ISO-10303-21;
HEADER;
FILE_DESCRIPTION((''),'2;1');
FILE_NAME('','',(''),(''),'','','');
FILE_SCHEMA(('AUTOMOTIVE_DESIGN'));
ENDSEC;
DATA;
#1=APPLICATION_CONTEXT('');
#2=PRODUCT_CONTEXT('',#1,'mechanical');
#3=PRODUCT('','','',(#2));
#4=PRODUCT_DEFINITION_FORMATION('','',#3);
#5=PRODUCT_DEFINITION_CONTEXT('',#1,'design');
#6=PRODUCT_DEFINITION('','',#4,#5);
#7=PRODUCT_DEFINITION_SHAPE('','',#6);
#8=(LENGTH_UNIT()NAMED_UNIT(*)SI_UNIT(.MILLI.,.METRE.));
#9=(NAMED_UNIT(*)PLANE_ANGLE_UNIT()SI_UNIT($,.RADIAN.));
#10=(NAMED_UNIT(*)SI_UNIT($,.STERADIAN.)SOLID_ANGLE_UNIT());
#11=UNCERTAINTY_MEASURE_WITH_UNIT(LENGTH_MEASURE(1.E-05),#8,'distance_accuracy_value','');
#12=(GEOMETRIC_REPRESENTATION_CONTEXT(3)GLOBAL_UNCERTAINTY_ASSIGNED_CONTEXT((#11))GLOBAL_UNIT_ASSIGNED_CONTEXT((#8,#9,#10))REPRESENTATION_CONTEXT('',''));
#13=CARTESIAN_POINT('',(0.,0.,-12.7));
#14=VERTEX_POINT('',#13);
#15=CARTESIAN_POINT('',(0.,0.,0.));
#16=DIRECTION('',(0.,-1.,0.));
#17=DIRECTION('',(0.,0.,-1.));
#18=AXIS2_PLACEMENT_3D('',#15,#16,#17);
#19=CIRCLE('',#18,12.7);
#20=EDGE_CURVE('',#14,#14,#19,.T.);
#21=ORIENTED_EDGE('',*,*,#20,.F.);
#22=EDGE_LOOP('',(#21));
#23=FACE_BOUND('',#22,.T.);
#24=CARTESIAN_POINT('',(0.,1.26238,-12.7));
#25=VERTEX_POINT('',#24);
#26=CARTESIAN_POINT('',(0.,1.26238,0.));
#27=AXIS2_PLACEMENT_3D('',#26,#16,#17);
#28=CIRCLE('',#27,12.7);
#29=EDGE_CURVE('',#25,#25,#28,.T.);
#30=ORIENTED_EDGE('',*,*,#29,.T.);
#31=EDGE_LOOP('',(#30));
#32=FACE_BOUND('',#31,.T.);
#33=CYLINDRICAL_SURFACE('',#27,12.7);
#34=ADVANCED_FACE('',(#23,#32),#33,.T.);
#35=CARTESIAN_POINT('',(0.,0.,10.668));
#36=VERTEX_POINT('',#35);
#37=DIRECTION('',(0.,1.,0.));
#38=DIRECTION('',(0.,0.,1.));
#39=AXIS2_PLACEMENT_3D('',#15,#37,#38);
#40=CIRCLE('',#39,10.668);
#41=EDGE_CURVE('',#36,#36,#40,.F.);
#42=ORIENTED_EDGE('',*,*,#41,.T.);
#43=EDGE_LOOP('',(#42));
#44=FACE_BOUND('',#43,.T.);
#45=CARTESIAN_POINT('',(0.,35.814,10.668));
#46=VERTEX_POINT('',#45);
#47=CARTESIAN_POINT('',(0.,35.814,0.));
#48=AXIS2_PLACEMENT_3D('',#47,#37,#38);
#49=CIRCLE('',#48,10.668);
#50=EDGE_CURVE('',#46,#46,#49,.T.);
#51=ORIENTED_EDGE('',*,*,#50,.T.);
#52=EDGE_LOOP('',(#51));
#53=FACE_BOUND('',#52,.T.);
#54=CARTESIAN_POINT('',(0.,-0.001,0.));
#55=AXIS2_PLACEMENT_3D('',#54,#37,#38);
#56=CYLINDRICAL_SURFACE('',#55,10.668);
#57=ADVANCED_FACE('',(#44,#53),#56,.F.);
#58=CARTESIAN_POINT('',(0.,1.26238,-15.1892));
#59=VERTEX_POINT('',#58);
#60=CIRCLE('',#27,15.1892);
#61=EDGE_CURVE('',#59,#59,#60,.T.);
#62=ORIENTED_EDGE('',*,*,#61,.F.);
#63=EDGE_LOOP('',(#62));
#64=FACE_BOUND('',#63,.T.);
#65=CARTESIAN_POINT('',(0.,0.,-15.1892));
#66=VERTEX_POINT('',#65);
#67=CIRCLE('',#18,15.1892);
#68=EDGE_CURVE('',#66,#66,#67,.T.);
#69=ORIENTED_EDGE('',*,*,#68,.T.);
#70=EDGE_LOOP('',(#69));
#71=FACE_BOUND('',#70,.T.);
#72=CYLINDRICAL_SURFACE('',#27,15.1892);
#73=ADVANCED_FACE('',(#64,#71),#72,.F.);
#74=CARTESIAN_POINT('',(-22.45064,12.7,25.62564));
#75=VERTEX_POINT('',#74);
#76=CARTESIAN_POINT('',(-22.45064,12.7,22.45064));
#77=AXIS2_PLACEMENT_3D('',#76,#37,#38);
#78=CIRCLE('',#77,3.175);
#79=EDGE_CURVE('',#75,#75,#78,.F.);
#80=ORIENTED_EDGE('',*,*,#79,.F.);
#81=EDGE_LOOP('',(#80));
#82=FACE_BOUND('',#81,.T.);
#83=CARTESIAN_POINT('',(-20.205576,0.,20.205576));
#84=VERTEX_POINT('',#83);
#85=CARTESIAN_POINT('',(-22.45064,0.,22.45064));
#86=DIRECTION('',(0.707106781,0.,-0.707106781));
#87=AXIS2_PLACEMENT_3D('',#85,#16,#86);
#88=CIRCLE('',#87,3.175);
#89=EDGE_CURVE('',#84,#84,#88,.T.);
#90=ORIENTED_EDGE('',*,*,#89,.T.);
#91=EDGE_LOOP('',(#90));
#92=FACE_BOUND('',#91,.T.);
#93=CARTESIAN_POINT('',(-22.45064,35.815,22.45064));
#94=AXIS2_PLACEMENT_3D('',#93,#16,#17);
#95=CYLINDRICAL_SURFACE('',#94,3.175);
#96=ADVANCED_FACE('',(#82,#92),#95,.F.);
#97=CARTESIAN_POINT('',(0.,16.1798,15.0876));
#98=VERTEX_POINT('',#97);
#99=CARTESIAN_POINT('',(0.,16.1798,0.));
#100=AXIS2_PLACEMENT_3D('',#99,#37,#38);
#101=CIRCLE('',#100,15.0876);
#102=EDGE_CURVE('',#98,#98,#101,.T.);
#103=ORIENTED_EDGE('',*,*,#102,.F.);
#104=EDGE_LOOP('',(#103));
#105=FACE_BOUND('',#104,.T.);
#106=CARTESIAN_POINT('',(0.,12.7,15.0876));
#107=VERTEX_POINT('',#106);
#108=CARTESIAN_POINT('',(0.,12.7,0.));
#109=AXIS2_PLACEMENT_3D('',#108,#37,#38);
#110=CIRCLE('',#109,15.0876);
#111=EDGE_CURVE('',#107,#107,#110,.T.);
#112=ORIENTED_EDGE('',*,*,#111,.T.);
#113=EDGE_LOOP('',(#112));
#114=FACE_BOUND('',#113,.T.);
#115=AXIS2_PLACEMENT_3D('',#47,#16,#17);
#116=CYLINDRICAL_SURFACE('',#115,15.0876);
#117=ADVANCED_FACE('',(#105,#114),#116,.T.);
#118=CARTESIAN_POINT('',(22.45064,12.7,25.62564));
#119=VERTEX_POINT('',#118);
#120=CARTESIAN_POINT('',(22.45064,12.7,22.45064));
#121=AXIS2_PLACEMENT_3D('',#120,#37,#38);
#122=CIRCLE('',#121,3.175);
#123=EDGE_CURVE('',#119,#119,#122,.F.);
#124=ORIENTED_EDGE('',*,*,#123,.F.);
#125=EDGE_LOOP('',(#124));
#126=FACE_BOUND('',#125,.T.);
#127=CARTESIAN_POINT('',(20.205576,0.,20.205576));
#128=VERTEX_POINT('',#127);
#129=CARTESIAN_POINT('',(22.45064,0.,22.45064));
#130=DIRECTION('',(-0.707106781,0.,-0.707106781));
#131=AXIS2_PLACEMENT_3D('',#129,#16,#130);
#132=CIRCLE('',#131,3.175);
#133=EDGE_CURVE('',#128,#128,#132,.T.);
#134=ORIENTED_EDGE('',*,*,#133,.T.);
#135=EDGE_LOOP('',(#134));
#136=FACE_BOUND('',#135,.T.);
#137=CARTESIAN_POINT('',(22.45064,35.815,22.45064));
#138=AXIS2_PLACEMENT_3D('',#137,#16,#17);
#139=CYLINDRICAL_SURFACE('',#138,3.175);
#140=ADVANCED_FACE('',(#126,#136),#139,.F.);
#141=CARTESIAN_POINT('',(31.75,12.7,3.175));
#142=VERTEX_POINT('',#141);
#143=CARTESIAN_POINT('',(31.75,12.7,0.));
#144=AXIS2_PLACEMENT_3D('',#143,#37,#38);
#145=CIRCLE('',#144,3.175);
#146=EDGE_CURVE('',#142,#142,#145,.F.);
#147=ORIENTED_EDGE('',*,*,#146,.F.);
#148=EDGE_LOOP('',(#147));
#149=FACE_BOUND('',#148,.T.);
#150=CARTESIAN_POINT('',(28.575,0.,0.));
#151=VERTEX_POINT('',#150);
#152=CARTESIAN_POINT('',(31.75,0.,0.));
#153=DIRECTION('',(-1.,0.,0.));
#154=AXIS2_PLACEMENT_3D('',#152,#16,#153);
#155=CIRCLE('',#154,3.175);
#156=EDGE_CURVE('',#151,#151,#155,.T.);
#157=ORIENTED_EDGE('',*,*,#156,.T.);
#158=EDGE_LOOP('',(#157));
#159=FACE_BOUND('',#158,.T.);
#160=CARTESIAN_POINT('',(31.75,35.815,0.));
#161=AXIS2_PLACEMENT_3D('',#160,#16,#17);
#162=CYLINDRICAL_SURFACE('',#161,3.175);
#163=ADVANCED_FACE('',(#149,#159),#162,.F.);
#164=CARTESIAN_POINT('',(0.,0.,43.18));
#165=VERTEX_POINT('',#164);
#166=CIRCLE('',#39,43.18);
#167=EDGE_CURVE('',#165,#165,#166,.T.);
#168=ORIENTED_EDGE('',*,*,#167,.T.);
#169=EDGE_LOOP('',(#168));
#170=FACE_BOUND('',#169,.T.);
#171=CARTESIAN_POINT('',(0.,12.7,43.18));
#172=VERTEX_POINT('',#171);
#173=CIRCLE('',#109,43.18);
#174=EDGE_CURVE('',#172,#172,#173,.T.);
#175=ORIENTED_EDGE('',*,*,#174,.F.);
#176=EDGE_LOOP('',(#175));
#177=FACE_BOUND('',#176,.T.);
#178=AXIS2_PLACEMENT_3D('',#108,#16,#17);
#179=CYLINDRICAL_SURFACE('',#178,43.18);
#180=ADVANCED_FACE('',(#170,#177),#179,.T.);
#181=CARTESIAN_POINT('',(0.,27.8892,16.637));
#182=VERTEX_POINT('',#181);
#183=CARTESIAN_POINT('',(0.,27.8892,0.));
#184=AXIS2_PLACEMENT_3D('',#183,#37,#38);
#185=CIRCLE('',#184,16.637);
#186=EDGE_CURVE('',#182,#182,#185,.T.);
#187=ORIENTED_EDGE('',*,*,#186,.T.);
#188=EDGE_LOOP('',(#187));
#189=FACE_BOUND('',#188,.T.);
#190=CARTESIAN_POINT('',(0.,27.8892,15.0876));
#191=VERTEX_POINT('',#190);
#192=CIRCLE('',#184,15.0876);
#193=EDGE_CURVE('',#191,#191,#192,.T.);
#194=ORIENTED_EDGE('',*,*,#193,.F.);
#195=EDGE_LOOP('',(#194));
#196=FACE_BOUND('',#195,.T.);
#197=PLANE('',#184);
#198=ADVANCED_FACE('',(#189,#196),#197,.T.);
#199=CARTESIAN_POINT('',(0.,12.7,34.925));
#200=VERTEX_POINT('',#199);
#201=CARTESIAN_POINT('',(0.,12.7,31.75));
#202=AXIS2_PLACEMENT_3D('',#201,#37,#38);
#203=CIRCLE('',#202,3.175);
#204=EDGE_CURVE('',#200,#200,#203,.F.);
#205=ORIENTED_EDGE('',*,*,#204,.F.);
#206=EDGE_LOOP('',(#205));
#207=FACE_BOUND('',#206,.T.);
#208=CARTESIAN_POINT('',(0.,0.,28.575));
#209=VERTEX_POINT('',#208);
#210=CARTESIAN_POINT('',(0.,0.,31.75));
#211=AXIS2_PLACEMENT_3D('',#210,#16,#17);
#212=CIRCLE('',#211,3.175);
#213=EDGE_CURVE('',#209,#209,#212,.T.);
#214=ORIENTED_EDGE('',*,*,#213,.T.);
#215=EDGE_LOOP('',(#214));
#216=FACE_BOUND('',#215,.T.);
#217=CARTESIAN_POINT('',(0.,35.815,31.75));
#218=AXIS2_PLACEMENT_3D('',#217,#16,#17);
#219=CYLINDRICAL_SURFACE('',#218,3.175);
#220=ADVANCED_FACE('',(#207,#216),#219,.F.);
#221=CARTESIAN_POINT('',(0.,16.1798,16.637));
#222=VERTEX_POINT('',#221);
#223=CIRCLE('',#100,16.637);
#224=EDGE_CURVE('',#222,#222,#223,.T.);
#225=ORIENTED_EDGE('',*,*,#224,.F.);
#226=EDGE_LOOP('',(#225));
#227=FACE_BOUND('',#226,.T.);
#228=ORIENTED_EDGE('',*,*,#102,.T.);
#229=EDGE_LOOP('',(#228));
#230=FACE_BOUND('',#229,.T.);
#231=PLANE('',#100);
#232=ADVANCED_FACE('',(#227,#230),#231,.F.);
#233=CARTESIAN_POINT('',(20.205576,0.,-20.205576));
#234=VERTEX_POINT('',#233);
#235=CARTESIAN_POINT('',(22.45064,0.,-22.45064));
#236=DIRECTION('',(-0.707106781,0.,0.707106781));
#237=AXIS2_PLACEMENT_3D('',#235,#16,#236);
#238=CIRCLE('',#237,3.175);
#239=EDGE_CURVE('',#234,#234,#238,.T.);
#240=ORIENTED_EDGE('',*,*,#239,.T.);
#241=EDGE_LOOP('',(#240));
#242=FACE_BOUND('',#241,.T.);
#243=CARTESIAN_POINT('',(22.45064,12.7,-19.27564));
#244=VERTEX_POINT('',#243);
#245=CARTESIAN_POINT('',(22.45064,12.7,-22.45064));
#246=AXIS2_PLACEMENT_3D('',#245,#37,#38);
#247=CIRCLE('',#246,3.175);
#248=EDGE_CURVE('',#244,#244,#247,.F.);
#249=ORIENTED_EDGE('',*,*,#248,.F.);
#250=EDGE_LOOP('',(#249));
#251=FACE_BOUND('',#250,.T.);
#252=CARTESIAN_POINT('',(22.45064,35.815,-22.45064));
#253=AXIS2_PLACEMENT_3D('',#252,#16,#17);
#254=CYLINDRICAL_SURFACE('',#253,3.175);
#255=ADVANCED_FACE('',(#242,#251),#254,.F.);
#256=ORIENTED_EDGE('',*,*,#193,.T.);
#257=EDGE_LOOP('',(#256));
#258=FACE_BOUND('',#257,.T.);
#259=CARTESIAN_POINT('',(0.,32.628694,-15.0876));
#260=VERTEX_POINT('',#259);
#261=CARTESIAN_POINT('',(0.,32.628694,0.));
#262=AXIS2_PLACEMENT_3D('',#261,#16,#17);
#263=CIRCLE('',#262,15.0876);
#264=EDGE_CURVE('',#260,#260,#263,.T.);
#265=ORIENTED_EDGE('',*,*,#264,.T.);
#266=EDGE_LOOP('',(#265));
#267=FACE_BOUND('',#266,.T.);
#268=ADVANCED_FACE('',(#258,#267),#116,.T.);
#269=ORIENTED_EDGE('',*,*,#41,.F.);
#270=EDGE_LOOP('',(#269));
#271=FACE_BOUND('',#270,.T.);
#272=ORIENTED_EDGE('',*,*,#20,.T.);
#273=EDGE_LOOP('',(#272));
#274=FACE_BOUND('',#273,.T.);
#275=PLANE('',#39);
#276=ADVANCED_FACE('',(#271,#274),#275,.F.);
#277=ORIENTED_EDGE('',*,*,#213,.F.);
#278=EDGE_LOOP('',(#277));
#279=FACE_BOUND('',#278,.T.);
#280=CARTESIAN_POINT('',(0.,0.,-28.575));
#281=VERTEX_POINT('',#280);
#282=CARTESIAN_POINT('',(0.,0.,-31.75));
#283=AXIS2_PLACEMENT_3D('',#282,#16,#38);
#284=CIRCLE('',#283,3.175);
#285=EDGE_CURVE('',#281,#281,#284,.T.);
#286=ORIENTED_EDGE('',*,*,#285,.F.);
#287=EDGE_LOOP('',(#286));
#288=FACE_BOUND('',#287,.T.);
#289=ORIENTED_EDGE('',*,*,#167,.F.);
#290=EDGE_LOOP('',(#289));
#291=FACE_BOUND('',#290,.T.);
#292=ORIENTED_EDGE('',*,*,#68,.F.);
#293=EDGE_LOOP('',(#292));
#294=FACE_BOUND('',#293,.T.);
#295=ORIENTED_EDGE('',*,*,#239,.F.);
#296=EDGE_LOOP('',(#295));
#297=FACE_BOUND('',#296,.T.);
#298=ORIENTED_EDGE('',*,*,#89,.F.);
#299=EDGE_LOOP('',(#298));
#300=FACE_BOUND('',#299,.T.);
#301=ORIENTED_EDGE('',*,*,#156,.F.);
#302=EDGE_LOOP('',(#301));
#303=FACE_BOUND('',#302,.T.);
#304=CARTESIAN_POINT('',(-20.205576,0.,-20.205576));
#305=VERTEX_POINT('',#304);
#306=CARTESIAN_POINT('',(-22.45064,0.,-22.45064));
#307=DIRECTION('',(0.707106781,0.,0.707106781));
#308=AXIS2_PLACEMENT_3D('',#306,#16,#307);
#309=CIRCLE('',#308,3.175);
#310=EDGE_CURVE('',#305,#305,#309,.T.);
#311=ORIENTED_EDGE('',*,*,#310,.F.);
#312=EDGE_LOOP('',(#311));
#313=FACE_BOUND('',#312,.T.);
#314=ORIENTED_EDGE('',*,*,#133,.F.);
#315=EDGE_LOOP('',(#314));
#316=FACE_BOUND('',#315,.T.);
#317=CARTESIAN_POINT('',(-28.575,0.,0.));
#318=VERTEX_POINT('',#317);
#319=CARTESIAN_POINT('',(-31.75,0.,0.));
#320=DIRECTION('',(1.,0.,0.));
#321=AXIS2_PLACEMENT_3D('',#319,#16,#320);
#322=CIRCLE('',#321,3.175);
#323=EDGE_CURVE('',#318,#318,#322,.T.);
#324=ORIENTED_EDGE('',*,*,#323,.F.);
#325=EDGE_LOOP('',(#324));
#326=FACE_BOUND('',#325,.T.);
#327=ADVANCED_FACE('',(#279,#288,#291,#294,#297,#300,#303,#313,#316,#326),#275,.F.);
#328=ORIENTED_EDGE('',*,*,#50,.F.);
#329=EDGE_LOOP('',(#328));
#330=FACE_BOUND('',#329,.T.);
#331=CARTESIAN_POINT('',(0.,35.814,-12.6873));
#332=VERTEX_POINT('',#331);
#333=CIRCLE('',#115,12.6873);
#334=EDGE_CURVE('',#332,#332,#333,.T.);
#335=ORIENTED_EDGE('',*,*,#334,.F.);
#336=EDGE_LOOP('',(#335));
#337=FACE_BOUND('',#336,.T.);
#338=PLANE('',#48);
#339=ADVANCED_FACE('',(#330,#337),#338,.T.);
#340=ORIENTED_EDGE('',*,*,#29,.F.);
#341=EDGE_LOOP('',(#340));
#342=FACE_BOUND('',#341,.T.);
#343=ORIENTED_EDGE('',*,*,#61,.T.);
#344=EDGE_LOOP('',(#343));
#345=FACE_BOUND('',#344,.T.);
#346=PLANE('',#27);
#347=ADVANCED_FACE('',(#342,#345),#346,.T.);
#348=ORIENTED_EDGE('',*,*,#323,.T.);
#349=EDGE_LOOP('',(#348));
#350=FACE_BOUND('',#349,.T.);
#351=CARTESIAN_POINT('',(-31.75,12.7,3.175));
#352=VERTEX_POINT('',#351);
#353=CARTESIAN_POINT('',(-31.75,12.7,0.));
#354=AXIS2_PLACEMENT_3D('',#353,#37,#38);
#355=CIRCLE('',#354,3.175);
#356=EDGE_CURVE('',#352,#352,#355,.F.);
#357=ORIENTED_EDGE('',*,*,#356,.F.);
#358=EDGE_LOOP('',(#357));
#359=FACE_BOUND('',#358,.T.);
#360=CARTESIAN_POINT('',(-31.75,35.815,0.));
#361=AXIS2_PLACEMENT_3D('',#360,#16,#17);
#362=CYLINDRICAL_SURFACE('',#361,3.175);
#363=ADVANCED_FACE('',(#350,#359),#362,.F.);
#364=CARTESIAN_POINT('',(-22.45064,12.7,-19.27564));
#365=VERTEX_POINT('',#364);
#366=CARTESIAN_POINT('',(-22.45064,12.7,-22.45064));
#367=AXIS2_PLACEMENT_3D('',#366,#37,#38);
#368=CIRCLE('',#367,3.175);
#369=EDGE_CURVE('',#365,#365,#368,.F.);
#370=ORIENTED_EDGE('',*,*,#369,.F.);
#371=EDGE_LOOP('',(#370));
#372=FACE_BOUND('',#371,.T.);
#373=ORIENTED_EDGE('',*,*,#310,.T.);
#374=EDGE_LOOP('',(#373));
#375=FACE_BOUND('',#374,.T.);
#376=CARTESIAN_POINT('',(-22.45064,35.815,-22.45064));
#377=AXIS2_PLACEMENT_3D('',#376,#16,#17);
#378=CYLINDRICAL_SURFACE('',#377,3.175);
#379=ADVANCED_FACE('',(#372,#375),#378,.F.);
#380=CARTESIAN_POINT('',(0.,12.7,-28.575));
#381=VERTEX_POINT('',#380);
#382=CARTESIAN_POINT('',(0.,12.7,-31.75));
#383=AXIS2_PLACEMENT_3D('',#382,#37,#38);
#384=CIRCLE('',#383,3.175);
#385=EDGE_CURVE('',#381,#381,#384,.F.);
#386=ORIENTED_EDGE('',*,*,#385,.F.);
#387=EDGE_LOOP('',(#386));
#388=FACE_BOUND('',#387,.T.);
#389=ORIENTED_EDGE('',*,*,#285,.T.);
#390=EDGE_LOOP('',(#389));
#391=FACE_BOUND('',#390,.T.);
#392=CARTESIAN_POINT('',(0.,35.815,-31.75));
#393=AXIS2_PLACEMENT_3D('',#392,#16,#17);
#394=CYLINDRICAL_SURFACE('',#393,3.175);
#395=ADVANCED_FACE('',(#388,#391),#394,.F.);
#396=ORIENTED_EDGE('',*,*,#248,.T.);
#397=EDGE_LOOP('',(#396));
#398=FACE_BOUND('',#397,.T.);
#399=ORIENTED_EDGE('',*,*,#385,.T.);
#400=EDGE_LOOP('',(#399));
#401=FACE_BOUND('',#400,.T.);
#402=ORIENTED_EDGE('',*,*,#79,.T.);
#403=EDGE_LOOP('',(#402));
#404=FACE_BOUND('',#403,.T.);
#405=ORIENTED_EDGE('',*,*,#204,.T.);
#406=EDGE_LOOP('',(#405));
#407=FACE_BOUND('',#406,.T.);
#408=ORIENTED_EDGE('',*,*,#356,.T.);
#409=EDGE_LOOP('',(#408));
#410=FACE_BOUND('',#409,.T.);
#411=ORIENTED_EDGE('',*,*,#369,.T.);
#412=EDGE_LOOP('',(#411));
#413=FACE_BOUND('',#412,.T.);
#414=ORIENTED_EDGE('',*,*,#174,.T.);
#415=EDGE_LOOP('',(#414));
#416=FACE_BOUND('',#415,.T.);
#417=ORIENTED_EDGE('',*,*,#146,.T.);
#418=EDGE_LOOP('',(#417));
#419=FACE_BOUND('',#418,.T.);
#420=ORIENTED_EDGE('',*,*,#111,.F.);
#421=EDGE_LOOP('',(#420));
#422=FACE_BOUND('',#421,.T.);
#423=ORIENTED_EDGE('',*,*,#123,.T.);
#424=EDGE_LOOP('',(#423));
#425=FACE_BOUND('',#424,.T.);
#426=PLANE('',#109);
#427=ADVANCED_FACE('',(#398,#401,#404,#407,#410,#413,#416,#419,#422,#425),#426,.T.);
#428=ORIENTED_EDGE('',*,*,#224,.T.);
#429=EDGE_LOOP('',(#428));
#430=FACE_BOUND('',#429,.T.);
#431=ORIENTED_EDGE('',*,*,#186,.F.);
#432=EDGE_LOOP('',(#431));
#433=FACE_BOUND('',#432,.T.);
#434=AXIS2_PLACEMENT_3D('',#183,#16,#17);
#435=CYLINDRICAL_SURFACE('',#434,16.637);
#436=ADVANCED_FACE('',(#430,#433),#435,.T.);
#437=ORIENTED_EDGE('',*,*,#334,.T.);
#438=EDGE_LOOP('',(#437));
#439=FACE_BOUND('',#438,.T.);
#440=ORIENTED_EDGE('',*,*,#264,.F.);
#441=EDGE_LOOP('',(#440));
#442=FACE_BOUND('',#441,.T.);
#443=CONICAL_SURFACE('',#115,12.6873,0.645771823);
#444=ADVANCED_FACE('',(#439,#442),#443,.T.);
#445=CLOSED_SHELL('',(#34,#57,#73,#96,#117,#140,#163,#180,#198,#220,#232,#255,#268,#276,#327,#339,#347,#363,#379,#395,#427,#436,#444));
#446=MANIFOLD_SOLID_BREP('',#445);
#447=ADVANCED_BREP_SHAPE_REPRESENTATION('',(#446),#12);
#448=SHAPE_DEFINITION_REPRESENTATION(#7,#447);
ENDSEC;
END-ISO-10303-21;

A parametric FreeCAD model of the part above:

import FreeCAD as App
import Part
import Sketcher
from FreeCAD import Vector
Q = App.Units.Quantity


def add_polygon(sketch, points):
    """Adds a closed chain of lines whose ends are joined by coincident constraints."""
    first, n = sketch.GeometryCount, len(points)
    for a, b in zip(points, points[1:] + points[:1]):
        sketch.addGeometry(Part.LineSegment(App.Vector(*a, 0), App.Vector(*b, 0)), False)
    for i in range(n):
        sketch.addConstraint(Sketcher.Constraint("Coincident", first + i, 2, first + (i + 1) % n, 1))

doc = App.newDocument("Part")
body = doc.addObject("PartDesign::Body", "Body")

sketch1 = doc.addObject("Sketcher::SketchObject", "Sketch")
body.addObject(sketch1)
sketch1.AttachmentSupport = (doc.XZ_Plane, [""])
sketch1.MapMode = "FlatFace"
sketch1.addGeometry(Part.Circle(Vector(0, 0, 0), Vector(0, 0, 1), 43), False)
sketch1.addConstraint(Sketcher.Constraint("Coincident", 0, 3, -1, 1))
sketch1.addConstraint(Sketcher.Constraint("Diameter", 0, Q("3.4 in")))
pad1 = doc.addObject("PartDesign::Pad", "Pad")
body.addObject(pad1)
pad1.Profile = sketch1
pad1.Length = Q("0.5 in")
pad1.Reversed = True

sketch2 = doc.addObject("Sketcher::SketchObject", "Sketch001")
body.addObject(sketch2)
sketch2.AttachmentSupport = (doc.XZ_Plane, [""])
sketch2.MapMode = "FlatFace"
sketch2.AttachmentOffset = App.Placement(Vector(0, 0, -0.5 * 25.4), App.Rotation())
sketch2.addGeometry(Part.Circle(Vector(0, 0, 0), Vector(0, 0, 1), 15), False)
sketch2.addConstraint(Sketcher.Constraint("Coincident", 0, 3, -1, 1))
sketch2.addConstraint(Sketcher.Constraint("Diameter", 0, Q("1.188 in")))
pad2 = doc.addObject("PartDesign::Pad", "Pad001")
body.addObject(pad2)
pad2.Profile = sketch2
pad2.Length = Q("0.91 in")
pad2.Reversed = True

sketch3 = doc.addObject("Sketcher::SketchObject", "Sketch002")
body.addObject(sketch3)
sketch3.AttachmentSupport = (doc.XZ_Plane, [""])
sketch3.MapMode = "FlatFace"
sketch3.AttachmentOffset = App.Placement(Vector(0, 0, -1.41 * 25.4), App.Rotation())
sketch3.addGeometry(Part.Circle(Vector(0, 0, 0), Vector(0, 0, 1), 11), False)
sketch3.addConstraint(Sketcher.Constraint("Coincident", 0, 3, -1, 1))
sketch3.addConstraint(Sketcher.Constraint("Diameter", 0, Q("0.84 in")))
pocket1 = doc.addObject("PartDesign::Pocket", "Pocket")
body.addObject(pocket1)
pocket1.Profile = sketch3
pocket1.Type = "UpToFirst"
pocket1.Reversed = True

sketch4 = doc.addObject("Sketcher::SketchObject", "Sketch003")
body.addObject(sketch4)
sketch4.AttachmentSupport = (doc.XZ_Plane, [""])
sketch4.MapMode = "FlatFace"
sketch4.AttachmentOffset = App.Placement(Vector(0, 0, -0.637 * 25.4), App.Rotation())
sketch4.addGeometry(Part.Circle(Vector(0, 0, 0), Vector(0, 0, 1), 17), False)
sketch4.addGeometry(Part.Circle(Vector(0, 0, 0), Vector(0, 0, 1), 15), False)
sketch4.addConstraint(Sketcher.Constraint("Coincident", 0, 3, -1, 1))
sketch4.addConstraint(Sketcher.Constraint("Coincident", 1, 3, -1, 1))
sketch4.addConstraint(Sketcher.Constraint("Diameter", 0, Q("1.31 in")))
sketch4.addConstraint(Sketcher.Constraint("Diameter", 1, Q("1.188 in")))
pad3 = doc.addObject("PartDesign::Pad", "Pad002")
body.addObject(pad3)
pad3.Profile = sketch4
pad3.Length = Q("0.461 in")
pad3.Reversed = True

sketch5 = doc.addObject("Sketcher::SketchObject", "Sketch004")
body.addObject(sketch5)
sketch5.AttachmentSupport = (doc.XY_Plane, [""])
sketch5.MapMode = "FlatFace"
add_polygon(sketch5, [(12.7, 35.8), (15.1, 32.6), (15.1, 35.8)])
sketch5.addConstraint(Sketcher.Constraint("Vertical", 1))
sketch5.addConstraint(Sketcher.Constraint("Horizontal", 2))
sketch5.addConstraint(Sketcher.Constraint("Angle", 0, Q("-53 deg")))
sketch5.addConstraint(Sketcher.Constraint("DistanceY", -1, 1, 1, 2, Q("1.41 in")))
sketch5.addConstraint(Sketcher.Constraint("DistanceX", 2, 2, 2, 1, Q("0.0945 in")))
sketch5.addConstraint(Sketcher.Constraint("DistanceX", -1, 1, 0, 2, Q("0.594 in")))
groove = doc.addObject("PartDesign::Groove", "Groove")
body.addObject(groove)
groove.Profile = sketch5
groove.ReferenceAxis = (sketch5, ["V_Axis"])
groove.Angle = 360

sketch6 = doc.addObject("Sketcher::SketchObject", "Sketch005")
body.addObject(sketch6)
sketch6.AttachmentSupport = (doc.XZ_Plane, [""])
sketch6.MapMode = "FlatFace"
sketch6.addGeometry(Part.Circle(Vector(0, 0, 0), Vector(0, 0, 1), 15), False)
sketch6.addGeometry(Part.Circle(Vector(0, 0, 0), Vector(0, 0, 1), 13), False)
sketch6.addConstraint(Sketcher.Constraint("Coincident", 0, 3, -1, 1))
sketch6.addConstraint(Sketcher.Constraint("Coincident", 1, 3, -1, 1))
sketch6.addConstraint(Sketcher.Constraint("Diameter", 1, Q("1 in")))
sketch6.addConstraint(Sketcher.Constraint("Diameter", 0, Q("1.196 in")))
pocket2 = doc.addObject("PartDesign::Pocket", "Pocket001")
body.addObject(pocket2)
pocket2.Profile = sketch6
pocket2.Length = Q("0.0497 in")

sketch7 = doc.addObject("Sketcher::SketchObject", "Sketch006")
body.addObject(sketch7)
sketch7.AttachmentSupport = (doc.XZ_Plane, [""])
sketch7.MapMode = "FlatFace"
sketch7.addGeometry(Part.Circle(Vector(0, 31.8, 0), Vector(0, 0, 1), 3.2), False)
sketch7.addConstraint(Sketcher.Constraint("PointOnObject", 0, 3, -2))
sketch7.addConstraint(Sketcher.Constraint("Diameter", 0, Q("0.25 in")))
sketch7.addConstraint(Sketcher.Constraint("DistanceY", -1, 1, 0, 3, Q("1.25 in")))
pocket3 = doc.addObject("PartDesign::Pocket", "Pocket002")
body.addObject(pocket3)
pocket3.Profile = sketch7
pocket3.Length = Q("0.5 in")
doc.recompute()

polarpattern = doc.addObject("PartDesign::PolarPattern", "PolarPattern")
body.addObject(polarpattern)
polarpattern.Originals = [pocket3]
polarpattern.Axis = (doc.Y_Axis, [""])
polarpattern.Angle = 360
polarpattern.Occurrences = 8
body.Tip = polarpattern

doc.recompute()
